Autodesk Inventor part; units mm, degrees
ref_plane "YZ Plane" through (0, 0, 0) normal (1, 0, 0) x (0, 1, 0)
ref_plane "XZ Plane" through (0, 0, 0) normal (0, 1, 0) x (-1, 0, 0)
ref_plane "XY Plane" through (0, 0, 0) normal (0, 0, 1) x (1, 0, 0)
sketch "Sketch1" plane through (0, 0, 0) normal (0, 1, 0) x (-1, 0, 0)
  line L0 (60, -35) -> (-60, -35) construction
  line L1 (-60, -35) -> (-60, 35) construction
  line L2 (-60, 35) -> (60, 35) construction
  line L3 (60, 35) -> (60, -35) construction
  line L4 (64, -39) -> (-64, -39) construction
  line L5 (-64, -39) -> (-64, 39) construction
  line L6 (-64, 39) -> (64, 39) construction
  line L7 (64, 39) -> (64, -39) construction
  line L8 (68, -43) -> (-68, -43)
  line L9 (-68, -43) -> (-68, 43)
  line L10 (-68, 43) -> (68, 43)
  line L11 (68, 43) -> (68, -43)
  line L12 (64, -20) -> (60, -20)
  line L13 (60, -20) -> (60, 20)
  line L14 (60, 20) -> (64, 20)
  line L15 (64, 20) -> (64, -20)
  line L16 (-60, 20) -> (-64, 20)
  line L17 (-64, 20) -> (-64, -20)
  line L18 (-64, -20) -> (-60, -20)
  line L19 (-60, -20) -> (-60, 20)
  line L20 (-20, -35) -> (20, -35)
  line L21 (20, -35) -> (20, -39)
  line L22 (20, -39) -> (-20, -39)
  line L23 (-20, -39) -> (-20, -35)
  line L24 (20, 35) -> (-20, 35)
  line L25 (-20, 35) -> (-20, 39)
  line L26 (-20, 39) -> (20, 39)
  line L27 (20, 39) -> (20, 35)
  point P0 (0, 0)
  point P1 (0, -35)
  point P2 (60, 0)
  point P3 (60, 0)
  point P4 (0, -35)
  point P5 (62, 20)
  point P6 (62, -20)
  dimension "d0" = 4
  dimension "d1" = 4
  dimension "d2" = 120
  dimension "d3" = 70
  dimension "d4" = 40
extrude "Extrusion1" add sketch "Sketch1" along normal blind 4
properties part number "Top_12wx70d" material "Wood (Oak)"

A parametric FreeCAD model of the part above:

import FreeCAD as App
import Part
import Sketcher

V = App.Vector

doc = App.newDocument("Part")
body = doc.addObject("PartDesign::Body", "Body")

# Sketch on XZ plane
sketch1 = body.newObject("Sketcher::SketchObject", "Sketch")
sketch1.AttachmentSupport = (doc.getObject("XZ_Plane"), [""])
sketch1.MapMode = "FlatFace"
sketch1.addGeometry(Part.LineSegment(V(68, -43, 0), V(-68, -43, 0)), False)
sketch1.addGeometry(Part.LineSegment(V(-68, -43, 0), V(-68, 43, 0)), False)
sketch1.addGeometry(Part.LineSegment(V(-68, 43, 0), V(68, 43, 0)), False)
sketch1.addGeometry(Part.LineSegment(V(68, 43, 0), V(68, -43, 0)), False)
sketch1.addGeometry(Part.LineSegment(V(20, -39, 0), V(20, -35, 0)), False)
sketch1.addGeometry(Part.LineSegment(V(20, -35, 0), V(-20, -35, 0)), False)
sketch1.addGeometry(Part.LineSegment(V(-20, -35, 0), V(-20, -39, 0)), False)
sketch1.addGeometry(Part.LineSegment(V(-20, -39, 0), V(20, -39, 0)), False)
sketch1.addGeometry(Part.LineSegment(V(64, 20, 0), V(60, 20, 0)), False)
sketch1.addGeometry(Part.LineSegment(V(60, 20, 0), V(60, -20, 0)), False)
sketch1.addGeometry(Part.LineSegment(V(60, -20, 0), V(64, -20, 0)), False)
sketch1.addGeometry(Part.LineSegment(V(64, -20, 0), V(64, 20, 0)), False)
sketch1.addGeometry(Part.LineSegment(V(-64, 20, 0), V(-64, -20, 0)), False)
sketch1.addGeometry(Part.LineSegment(V(-64, -20, 0), V(-60, -20, 0)), False)
sketch1.addGeometry(Part.LineSegment(V(-60, -20, 0), V(-60, 20, 0)), False)
sketch1.addGeometry(Part.LineSegment(V(-60, 20, 0), V(-64, 20, 0)), False)
sketch1.addGeometry(Part.LineSegment(V(-20, 39, 0), V(-20, 35, 0)), False)
sketch1.addGeometry(Part.LineSegment(V(-20, 35, 0), V(20, 35, 0)), False)
sketch1.addGeometry(Part.LineSegment(V(20, 35, 0), V(20, 39, 0)), False)
sketch1.addGeometry(Part.LineSegment(V(20, 39, 0), V(-20, 39, 0)), False)
sketch1.addConstraint(Sketcher.Constraint("Coincident", 0, 2, 1, 1))
sketch1.addConstraint(Sketcher.Constraint("Coincident", 1, 2, 2, 1))
sketch1.addConstraint(Sketcher.Constraint("Coincident", 2, 2, 3, 1))
sketch1.addConstraint(Sketcher.Constraint("Coincident", 3, 2, 0, 1))
sketch1.addConstraint(Sketcher.Constraint("Coincident", 4, 2, 5, 1))
sketch1.addConstraint(Sketcher.Constraint("Coincident", 5, 2, 6, 1))
sketch1.addConstraint(Sketcher.Constraint("Coincident", 6, 2, 7, 1))
sketch1.addConstraint(Sketcher.Constraint("Coincident", 7, 2, 4, 1))
sketch1.addConstraint(Sketcher.Constraint("Coincident", 8, 2, 9, 1))
sketch1.addConstraint(Sketcher.Constraint("Coincident", 9, 2, 10, 1))
sketch1.addConstraint(Sketcher.Constraint("Coincident", 10, 2, 11, 1))
sketch1.addConstraint(Sketcher.Constraint("Coincident", 11, 2, 8, 1))
sketch1.addConstraint(Sketcher.Constraint("Coincident", 12, 2, 13, 1))
sketch1.addConstraint(Sketcher.Constraint("Coincident", 13, 2, 14, 1))
sketch1.addConstraint(Sketcher.Constraint("Coincident", 14, 2, 15, 1))
sketch1.addConstraint(Sketcher.Constraint("Coincident", 15, 2, 12, 1))
sketch1.addConstraint(Sketcher.Constraint("Coincident", 16, 2, 17, 1))
sketch1.addConstraint(Sketcher.Constraint("Coincident", 17, 2, 18, 1))
sketch1.addConstraint(Sketcher.Constraint("Coincident", 18, 2, 19, 1))
sketch1.addConstraint(Sketcher.Constraint("Coincident", 19, 2, 16, 1))
sketch1.addConstraint(Sketcher.Constraint("Horizontal", 0))
sketch1.addConstraint(Sketcher.Constraint("Vertical", 1))
sketch1.addConstraint(Sketcher.Constraint("Horizontal", 2))
sketch1.addConstraint(Sketcher.Constraint("Vertical", 3))
sketch1.addConstraint(Sketcher.Constraint("Vertical", 4))
sketch1.addConstraint(Sketcher.Constraint("Horizontal", 5))
sketch1.addConstraint(Sketcher.Constraint("Vertical", 6))
sketch1.addConstraint(Sketcher.Constraint("Horizontal", 7))
sketch1.addConstraint(Sketcher.Constraint("Horizontal", 8))
sketch1.addConstraint(Sketcher.Constraint("Vertical", 9))
sketch1.addConstraint(Sketcher.Constraint("Horizontal", 10))
sketch1.addConstraint(Sketcher.Constraint("Vertical", 11))
sketch1.addConstraint(Sketcher.Constraint("Vertical", 12))
sketch1.addConstraint(Sketcher.Constraint("Horizontal", 13))
sketch1.addConstraint(Sketcher.Constraint("Vertical", 14))
sketch1.addConstraint(Sketcher.Constraint("Horizontal", 15))
sketch1.addConstraint(Sketcher.Constraint("Vertical", 16))
sketch1.addConstraint(Sketcher.Constraint("Horizontal", 17))
sketch1.addConstraint(Sketcher.Constraint("Vertical", 18))
sketch1.addConstraint(Sketcher.Constraint("Horizontal", 19))
sketch1.addConstraint(Sketcher.Constraint("Symmetric", 0, 2, 2, 2, -1, 1))
sketch1.addConstraint(Sketcher.Constraint("Symmetric", 11, 2, 12, 2, -1, 1))
sketch1.addConstraint(Sketcher.Constraint("Symmetric", 9, 2, 14, 2, -1, 1))
sketch1.addConstraint(Sketcher.Constraint("Symmetric", 4, 2, 16, 2, -1, 1))
sketch1.addConstraint(Sketcher.Constraint("Symmetric", 6, 2, 18, 2, -1, 1))
sketch1.addConstraint(Sketcher.Constraint("Horizontal", 10, 2, 12, 2))
sketch1.addConstraint(Sketcher.Constraint("Vertical", 6, 2, 16, 2))
sketch1.addConstraint(Sketcher.Constraint("Equal", 15, 4))
sketch1.addConstraint(Sketcher.Constraint("Equal", 19, 9))
sketch1.addConstraint(Sketcher.Constraint("DistanceX", 5, 2, 5, 1, 40.0))
sketch1.addConstraint(Sketcher.Constraint("DistanceX", 8, 2, 8, 1, 4.0))
sketch1.addConstraint(Sketcher.Constraint("DistanceY", 0, 2, 6, 2, 4.0))
sketch1.addConstraint(Sketcher.Constraint("DistanceX", 4, 2, 8, 2, 40.0))
sketch1.addConstraint(Sketcher.Constraint("DistanceX", 10, 2, 3, 2, 4.0))
sketch1.addConstraint(Sketcher.Constraint("DistanceY", 5, 2, 16, 2, 70.0))
pad1 = body.newObject("PartDesign::Pad", "Pad")
pad1.Profile = sketch1
pad1.Length = 4
pad1.Reversed = True

doc.recompute()
